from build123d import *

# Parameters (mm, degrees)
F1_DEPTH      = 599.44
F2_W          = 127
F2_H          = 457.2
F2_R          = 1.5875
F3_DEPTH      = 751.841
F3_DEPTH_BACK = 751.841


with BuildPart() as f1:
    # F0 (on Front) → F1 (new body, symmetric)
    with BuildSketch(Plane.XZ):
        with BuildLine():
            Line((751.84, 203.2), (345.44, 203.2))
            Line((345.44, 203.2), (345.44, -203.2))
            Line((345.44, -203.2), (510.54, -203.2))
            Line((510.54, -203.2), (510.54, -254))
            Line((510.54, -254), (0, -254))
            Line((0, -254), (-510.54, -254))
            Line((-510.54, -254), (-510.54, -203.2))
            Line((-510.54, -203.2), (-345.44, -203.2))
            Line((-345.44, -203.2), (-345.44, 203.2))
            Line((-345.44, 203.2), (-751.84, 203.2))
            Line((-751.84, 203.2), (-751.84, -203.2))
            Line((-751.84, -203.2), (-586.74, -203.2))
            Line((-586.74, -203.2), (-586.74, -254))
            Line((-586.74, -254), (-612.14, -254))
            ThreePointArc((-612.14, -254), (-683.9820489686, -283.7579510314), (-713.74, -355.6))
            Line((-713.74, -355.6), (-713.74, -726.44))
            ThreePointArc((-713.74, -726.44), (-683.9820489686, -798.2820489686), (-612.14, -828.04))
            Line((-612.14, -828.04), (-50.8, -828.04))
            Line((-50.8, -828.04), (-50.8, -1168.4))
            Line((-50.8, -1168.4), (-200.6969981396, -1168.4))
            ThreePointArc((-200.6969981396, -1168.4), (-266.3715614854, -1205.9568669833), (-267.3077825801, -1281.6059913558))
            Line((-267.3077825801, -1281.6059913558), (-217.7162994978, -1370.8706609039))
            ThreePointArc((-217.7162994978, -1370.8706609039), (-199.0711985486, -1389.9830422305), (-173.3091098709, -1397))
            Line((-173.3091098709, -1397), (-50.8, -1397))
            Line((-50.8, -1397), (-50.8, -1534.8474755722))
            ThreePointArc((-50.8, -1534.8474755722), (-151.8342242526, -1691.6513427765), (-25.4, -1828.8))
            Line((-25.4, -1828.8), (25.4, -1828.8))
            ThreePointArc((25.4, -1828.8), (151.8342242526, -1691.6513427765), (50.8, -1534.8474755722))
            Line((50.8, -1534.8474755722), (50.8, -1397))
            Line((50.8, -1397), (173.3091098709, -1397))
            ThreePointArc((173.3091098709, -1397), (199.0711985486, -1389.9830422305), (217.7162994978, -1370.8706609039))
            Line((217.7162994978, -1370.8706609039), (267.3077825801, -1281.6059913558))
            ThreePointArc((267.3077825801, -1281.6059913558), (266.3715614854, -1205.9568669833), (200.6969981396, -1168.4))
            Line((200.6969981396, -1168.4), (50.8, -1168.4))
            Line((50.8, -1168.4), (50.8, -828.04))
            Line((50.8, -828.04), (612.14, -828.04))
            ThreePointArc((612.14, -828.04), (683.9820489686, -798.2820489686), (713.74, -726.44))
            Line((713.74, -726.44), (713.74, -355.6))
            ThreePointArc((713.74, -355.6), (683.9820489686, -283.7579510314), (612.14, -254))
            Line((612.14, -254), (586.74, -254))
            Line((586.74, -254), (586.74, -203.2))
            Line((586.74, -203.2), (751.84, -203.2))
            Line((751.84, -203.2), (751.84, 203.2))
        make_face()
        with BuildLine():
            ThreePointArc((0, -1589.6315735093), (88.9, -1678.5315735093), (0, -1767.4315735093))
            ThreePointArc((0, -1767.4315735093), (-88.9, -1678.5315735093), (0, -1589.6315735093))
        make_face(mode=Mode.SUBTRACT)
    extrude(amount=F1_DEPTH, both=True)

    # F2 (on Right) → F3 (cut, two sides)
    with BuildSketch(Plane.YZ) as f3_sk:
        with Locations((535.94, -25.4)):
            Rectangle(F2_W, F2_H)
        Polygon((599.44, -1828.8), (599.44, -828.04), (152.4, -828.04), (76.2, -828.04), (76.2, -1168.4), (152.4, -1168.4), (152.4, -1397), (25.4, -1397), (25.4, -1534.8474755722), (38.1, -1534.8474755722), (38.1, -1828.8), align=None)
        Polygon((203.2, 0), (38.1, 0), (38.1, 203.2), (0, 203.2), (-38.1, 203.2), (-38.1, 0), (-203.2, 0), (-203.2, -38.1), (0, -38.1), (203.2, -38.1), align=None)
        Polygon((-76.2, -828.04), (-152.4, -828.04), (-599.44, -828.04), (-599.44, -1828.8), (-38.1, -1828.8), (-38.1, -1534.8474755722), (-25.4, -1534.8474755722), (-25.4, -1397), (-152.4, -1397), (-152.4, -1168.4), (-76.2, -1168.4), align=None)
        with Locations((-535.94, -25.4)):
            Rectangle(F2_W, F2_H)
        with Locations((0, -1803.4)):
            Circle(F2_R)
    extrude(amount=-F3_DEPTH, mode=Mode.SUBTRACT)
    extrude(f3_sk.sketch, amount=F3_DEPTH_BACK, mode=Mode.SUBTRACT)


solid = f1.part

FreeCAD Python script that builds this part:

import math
import FreeCAD as App
import Part
import Sketcher

V = App.Vector
Q = App.Units.Quantity


def add_polygon(sketch, points):
    """Adds a closed chain of lines whose ends are joined by coincident constraints."""
    first, n = sketch.GeometryCount, len(points)
    for a, b in zip(points, points[1:] + points[:1]):
        sketch.addGeometry(Part.LineSegment(App.Vector(*a, 0), App.Vector(*b, 0)), False)
    for i in range(n):
        sketch.addConstraint(Sketcher.Constraint("Coincident", first + i, 2, first + (i + 1) % n, 1))

doc = App.newDocument("Part")
params = doc.addObject("Spreadsheet::Sheet", "Params")
for row, (alias, value) in enumerate([
    ("sketch1_diameter", "7 in"),
    ("sketch1_radius", "4 in"),
    ("sketch1_radius2", "3 in"),
    ("sketch1_radius3", "2 in"),
    ("sketch1_radius4", "6 in"),
    ("pad1_length", "47.2 in"),
    ("sketch2_width", "5 in"),
    ("sketch2_width2", "3 in"),
    ("sketch2_width3", "16 in"),
    ("sketch2_height", "18 in"),
    ("sketch2_height2", "9 in"),
], start=1):
    params.set(f"A{row}", alias)
    params.set(f"B{row}", "=" + value)
    params.setAlias(f"B{row}", alias)

body = doc.addObject("PartDesign::Body", "Body")

# Sketch on XZ plane
sketch1 = doc.addObject("Sketcher::SketchObject", "Sketch")
body.addObject(sketch1)
sketch1.AttachmentSupport = (doc.XZ_Plane, [""])
sketch1.MapMode = "FlatFace"
sketch1.addGeometry([
    Part.LineSegment(V(752, 203, 0), V(345, 203, 0)),  # 0
    Part.LineSegment(V(345, 203, 0), V(345, -203, 0)),  # 1
    Part.LineSegment(V(345, -203, 0), V(511, -203, 0)),  # 2
    Part.LineSegment(V(511, -203, 0), V(511, -254, 0)),  # 3
    Part.LineSegment(V(511, -254, 0), V(-511, -254, 0)),  # 4
    Part.LineSegment(V(-511, -254, 0), V(-511, -203, 0)),  # 5
    Part.LineSegment(V(-511, -203, 0), V(-345, -203, 0)),  # 6
    Part.LineSegment(V(-345, -203, 0), V(-345, 203, 0)),  # 7
    Part.LineSegment(V(-345, 203, 0), V(-752, 203, 0)),  # 8
    Part.LineSegment(V(-752, 203, 0), V(-752, -203, 0)),  # 9
    Part.LineSegment(V(-752, -203, 0), V(-587, -203, 0)),  # 10
    Part.LineSegment(V(-587, -203, 0), V(-587, -254, 0)),  # 11
    Part.LineSegment(V(-587, -254, 0), V(-612, -254, 0)),  # 12
    Part.ArcOfCircle(Part.Circle(V(-612, -356, 0), V(0, 0, 1), 102), math.radians(90), math.radians(180)),  # 13
    Part.LineSegment(V(-714, -356, 0), V(-714, -726, 0)),  # 14
    Part.ArcOfCircle(Part.Circle(V(-612, -726, 0), V(0, 0, 1), 102), math.radians(180), math.radians(270)),  # 15
    Part.LineSegment(V(-612, -828, 0), V(-51, -828, 0)),  # 16
    Part.LineSegment(V(-51, -828, 0), V(-51, -1168, 0)),  # 17
    Part.LineSegment(V(-51, -1168, 0), V(-201, -1168, 0)),  # 18
    Part.ArcOfCircle(Part.Circle(V(-201, -1245, 0), V(0, 0, 1), 76), math.radians(90), math.radians(209)),  # 19
    Part.LineSegment(V(-267, -1282, 0), V(-218, -1371, 0)),  # 20
    Part.ArcOfCircle(Part.Circle(V(-173, -1346, 0), V(0, 0, 1), 51), math.radians(-151), math.radians(-90)),  # 21
    Part.LineSegment(V(-173, -1397, 0), V(-51, -1397, 0)),  # 22
    Part.LineSegment(V(-51, -1397, 0), V(-51, -1535, 0)),  # 23
    Part.ArcOfCircle(Part.Circle(V(0, -1679, 0), V(0, 0, 1), 152), math.radians(109), math.radians(260)),  # 24
    Part.LineSegment(V(-25, -1829, 0), V(25, -1829, 0)),  # 25
    Part.ArcOfCircle(Part.Circle(V(0, -1679, 0), V(0, 0, 1), 152), math.radians(-80), math.radians(71)),  # 26
    Part.LineSegment(V(51, -1535, 0), V(51, -1397, 0)),  # 27
    Part.LineSegment(V(51, -1397, 0), V(173, -1397, 0)),  # 28
    Part.ArcOfCircle(Part.Circle(V(173, -1346, 0), V(0, 0, 1), 51), math.radians(-90), math.radians(-29)),  # 29
    Part.LineSegment(V(218, -1371, 0), V(267, -1282, 0)),  # 30
    Part.ArcOfCircle(Part.Circle(V(201, -1245, 0), V(0, 0, 1), 76), math.radians(-29), math.radians(90)),  # 31
    Part.LineSegment(V(201, -1168, 0), V(51, -1168, 0)),  # 32
    Part.LineSegment(V(51, -1168, 0), V(51, -828, 0)),  # 33
    Part.LineSegment(V(51, -828, 0), V(612, -828, 0)),  # 34
    Part.ArcOfCircle(Part.Circle(V(612, -726, 0), V(0, 0, 1), 102), math.radians(-90), math.radians(0)),  # 35
    Part.LineSegment(V(714, -726, 0), V(714, -356, 0)),  # 36
    Part.ArcOfCircle(Part.Circle(V(612, -356, 0), V(0, 0, 1), 102), math.radians(0), math.radians(90)),  # 37
    Part.LineSegment(V(612, -254, 0), V(587, -254, 0)),  # 38
    Part.LineSegment(V(587, -254, 0), V(587, -203, 0)),  # 39
    Part.LineSegment(V(587, -203, 0), V(752, -203, 0)),  # 40
    Part.LineSegment(V(752, -203, 0), V(752, 203, 0)),  # 41
    Part.Circle(V(0, -1679, 0), V(0, 0, 1), 89),  # 42
], False)
sketch1.addConstraint([
    Sketcher.Constraint("Coincident", 0, 2, 1, 1),
    Sketcher.Constraint("Coincident", 1, 2, 2, 1),
    Sketcher.Constraint("Coincident", 2, 2, 3, 1),
    Sketcher.Constraint("Coincident", 3, 2, 4, 1),
    Sketcher.Constraint("Coincident", 4, 2, 5, 1),
    Sketcher.Constraint("Coincident", 5, 2, 6, 1),
    Sketcher.Constraint("Coincident", 6, 2, 7, 1),
    Sketcher.Constraint("Coincident", 7, 2, 8, 1),
    Sketcher.Constraint("Coincident", 8, 2, 9, 1),
    Sketcher.Constraint("Coincident", 9, 2, 10, 1),
    Sketcher.Constraint("Coincident", 10, 2, 11, 1),
    Sketcher.Constraint("Coincident", 11, 2, 12, 1),
    Sketcher.Constraint("Tangent", 12, 2, 13, 1),
    Sketcher.Constraint("Tangent", 13, 2, 14, 1),
    Sketcher.Constraint("Tangent", 14, 2, 15, 1),
    Sketcher.Constraint("Tangent", 15, 2, 16, 1),
    Sketcher.Constraint("Coincident", 16, 2, 17, 1),
    Sketcher.Constraint("Coincident", 17, 2, 18, 1),
    Sketcher.Constraint("Tangent", 18, 2, 19, 1),
    Sketcher.Constraint("Tangent", 19, 2, 20, 1),
    Sketcher.Constraint("Tangent", 20, 2, 21, 1),
    Sketcher.Constraint("Tangent", 21, 2, 22, 1),
    Sketcher.Constraint("Coincident", 22, 2, 23, 1),
    Sketcher.Constraint("Coincident", 23, 2, 24, 1),
    Sketcher.Constraint("Coincident", 24, 2, 25, 1),
    Sketcher.Constraint("Coincident", 25, 2, 26, 1),
    Sketcher.Constraint("Coincident", 26, 2, 27, 1),
    Sketcher.Constraint("Coincident", 27, 2, 28, 1),
    Sketcher.Constraint("Tangent", 28, 2, 29, 1),
    Sketcher.Constraint("Tangent", 29, 2, 30, 1),
    Sketcher.Constraint("Tangent", 30, 2, 31, 1),
    Sketcher.Constraint("Tangent", 31, 2, 32, 1),
    Sketcher.Constraint("Coincident", 32, 2, 33, 1),
    Sketcher.Constraint("Coincident", 33, 2, 34, 1),
    Sketcher.Constraint("Tangent", 34, 2, 35, 1),
    Sketcher.Constraint("Tangent", 35, 2, 36, 1),
    Sketcher.Constraint("Tangent", 36, 2, 37, 1),
    Sketcher.Constraint("Tangent", 37, 2, 38, 1),
    Sketcher.Constraint("Coincident", 38, 2, 39, 1),
    Sketcher.Constraint("Coincident", 39, 2, 40, 1),
    Sketcher.Constraint("Coincident", 40, 2, 41, 1),
    Sketcher.Constraint("Coincident", 41, 2, 0, 1),
    Sketcher.Constraint("Horizontal", 0),
    Sketcher.Constraint("Vertical", 1),
    Sketcher.Constraint("Horizontal", 2),
    Sketcher.Constraint("Vertical", 3),
    Sketcher.Constraint("Horizontal", 4),
    Sketcher.Constraint("Vertical", 5),
    Sketcher.Constraint("Horizontal", 6),
    Sketcher.Constraint("Vertical", 7),
    Sketcher.Constraint("Horizontal", 8),
    Sketcher.Constraint("Vertical", 9),
    Sketcher.Constraint("Horizontal", 10),
    Sketcher.Constraint("Vertical", 11),
    Sketcher.Constraint("Horizontal", 12),
    Sketcher.Constraint("Vertical", 14),
    Sketcher.Constraint("Horizontal", 16),
    Sketcher.Constraint("Vertical", 17),
    Sketcher.Constraint("Horizontal", 18),
    Sketcher.Constraint("Horizontal", 22),
    Sketcher.Constraint("Vertical", 23),
    Sketcher.Constraint("Horizontal", 25),
    Sketcher.Constraint("Vertical", 27),
    Sketcher.Constraint("Horizontal", 28),
    Sketcher.Constraint("Horizontal", 32),
    Sketcher.Constraint("Vertical", 33),
    Sketcher.Constraint("Horizontal", 34),
    Sketcher.Constraint("Vertical", 36),
    Sketcher.Constraint("Horizontal", 38),
    Sketcher.Constraint("Vertical", 39),
    Sketcher.Constraint("Horizontal", 40),
    Sketcher.Constraint("Vertical", 41),
    Sketcher.Constraint("Coincident", 26, 3, 24, 3),
    Sketcher.Constraint("Coincident", 42, 3, 24, 3),
    Sketcher.Constraint("Equal", 13, 15),
    Sketcher.Constraint("Equal", 24, 26),
    Sketcher.Constraint("Equal", 21, 29),
    Sketcher.Constraint("Equal", 19, 31),
    Sketcher.Constraint("Equal", 15, 35),
    Sketcher.Constraint("Equal", 35, 37),
    Sketcher.Constraint("Symmetric", 0, 2, 6, 2, -1, 1),
    Sketcher.Constraint("Symmetric", 8, 2, 40, 2, -1, 1),
    Sketcher.Constraint("Symmetric", 21, 3, 29, 3, -2),
    Sketcher.Constraint("Symmetric", 19, 3, 31, 3, -2),
    Sketcher.Constraint("Symmetric", 15, 3, 35, 3, -2),
    Sketcher.Constraint("Symmetric", 2, 2, 5, 2, -2),
    Sketcher.Constraint("Symmetric", 23, 2, 26, 2, -2),
    Sketcher.Constraint("Symmetric", 11, 2, 38, 2, -2),
    Sketcher.Constraint("Horizontal", 0, 2, 7, 2),
    Sketcher.Constraint("Horizontal", 6, 2, 9, 2),
    Sketcher.Constraint("Horizontal", 4, 2, 11, 2),
    Sketcher.Constraint("Vertical", 17, 2, 22, 2),
    Sketcher.Constraint("Vertical", 27, 2, 32, 2),
    Sketcher.Constraint("Equal", 6, 10),
    Sketcher.Constraint("Equal", 8, 1),
    Sketcher.Constraint("Equal", 25, 3),
    Sketcher.Constraint("Diameter", 42, Q("7 in")),
    Sketcher.Constraint("Radius", 13, Q("4 in")),
    Sketcher.Constraint("Radius", 19, Q("3 in")),
    Sketcher.Constraint("Radius", 21, Q("2 in")),
    Sketcher.Constraint("Radius", 24, Q("6 in")),
    Sketcher.Constraint("DistanceX", 0, 2, 0, 1, Q("16 in")),
    Sketcher.Constraint("DistanceX", 12, 2, 12, 1, Q("1 in")),
    Sketcher.Constraint("DistanceX", 25, 1, 25, 2, Q("2 in")),
    Sketcher.Constraint("DistanceX", 2, 1, 2, 2, Q("6.5 in")),
    Sketcher.Constraint("DistanceX", 4, 2, 4, 1, Q("40.2 in")),
    Sketcher.Constraint("DistanceX", 16, 1, 16, 2, Q("22.1 in")),
    Sketcher.Constraint("DistanceY", 14, 2, 14, 1, Q("14.6 in")),
    Sketcher.Constraint("DistanceY", 17, 2, 17, 1, Q("13.4 in")),
    Sketcher.Constraint("DistanceY", 21, 3, -1, 1, Q("53 in")),
    Sketcher.Constraint("DistanceY", 24, 2, -1, 1, Q("72 in")),
    Sketcher.Constraint("DistanceX", 18, 2, 18, 1, 149.896998),
    Sketcher.Constraint("DistanceX", 22, 1, 22, 2, 122.50911),
])
sketch1.setExpression("Constraints[96]", "Params.sketch1_diameter")
sketch1.setExpression("Constraints[97]", "Params.sketch1_radius")
sketch1.setExpression("Constraints[98]", "Params.sketch1_radius2")
sketch1.setExpression("Constraints[99]", "Params.sketch1_radius3")
sketch1.setExpression("Constraints[100]", "Params.sketch1_radius4")
pad1 = doc.addObject("PartDesign::Pad", "Pad")
body.addObject(pad1)
pad1.Profile = sketch1
pad1.setExpression("Length", "Params.pad1_length")
pad1.Midplane = True

# Sketch on YZ plane
sketch2 = doc.addObject("Sketcher::SketchObject", "Sketch001")
body.addObject(sketch2)
sketch2.AttachmentSupport = (doc.YZ_Plane, [""])
sketch2.MapMode = "FlatFace"
add_polygon(sketch2, [(472.4, 203.2), (472.4, -254), (599.4, -254), (599.4, 203.2)])  # lines 0-3
add_polygon(sketch2, [(599.4, -1828.8), (599.4, -828), (76.2, -828), (76.2, -1168.4), (152.4, -1168.4), (152.4, -1397), (25.4, -1397), (25.4, -1534.8), (38.1, -1534.8), (38.1, -1828.8)])  # lines 4-13
add_polygon(sketch2, [(203.2, 0), (38.1, 0), (38.1, 203.2), (-38.1, 203.2), (-38.1, 0), (-203.2, 0), (-203.2, -38.1), (203.2, -38.1)])  # lines 14-21
add_polygon(sketch2, [(-76.2, -828), (-599.4, -828), (-599.4, -1828.8), (-38.1, -1828.8), (-38.1, -1534.8), (-25.4, -1534.8), (-25.4, -1397), (-152.4, -1397), (-152.4, -1168.4), (-76.2, -1168.4)])  # lines 22-31
add_polygon(sketch2, [(-599.4, 203.2), (-599.4, -254), (-472.4, -254), (-472.4, 203.2)])  # lines 32-35
sketch2.addGeometry(Part.Circle(V(0, -1803.4, 0), V(0, 0, 1), 1.6), False)  # 36
sketch2.addConstraint([
    Sketcher.Constraint("Vertical", 0),
    Sketcher.Constraint("Horizontal", 1),
    Sketcher.Constraint("Vertical", 2),
    Sketcher.Constraint("Horizontal", 3),
    Sketcher.Constraint("Vertical", 4),
    Sketcher.Constraint("Horizontal", 5),
    Sketcher.Constraint("Vertical", 6),
    Sketcher.Constraint("Horizontal", 7),
    Sketcher.Constraint("Vertical", 8),
    Sketcher.Constraint("Horizontal", 9),
    Sketcher.Constraint("Vertical", 10),
    Sketcher.Constraint("Horizontal", 11),
    Sketcher.Constraint("Vertical", 12),
    Sketcher.Constraint("Horizontal", 13),
    Sketcher.Constraint("Horizontal", 14),
    Sketcher.Constraint("Vertical", 15),
    Sketcher.Constraint("Horizontal", 16),
    Sketcher.Constraint("Vertical", 17),
    Sketcher.Constraint("Horizontal", 18),
    Sketcher.Constraint("Vertical", 19),
    Sketcher.Constraint("Horizontal", 20),
    Sketcher.Constraint("Vertical", 21),
    Sketcher.Constraint("Horizontal", 22),
    Sketcher.Constraint("Vertical", 23),
    Sketcher.Constraint("Horizontal", 24),
    Sketcher.Constraint("Vertical", 25),
    Sketcher.Constraint("Horizontal", 26),
    Sketcher.Constraint("Vertical", 27),
    Sketcher.Constraint("Horizontal", 28),
    Sketcher.Constraint("Vertical", 29),
    Sketcher.Constraint("Horizontal", 30),
    Sketcher.Constraint("Vertical", 31),
    Sketcher.Constraint("Vertical", 32),
    Sketcher.Constraint("Horizontal", 33),
    Sketcher.Constraint("Vertical", 34),
    Sketcher.Constraint("Horizontal", 35),
    Sketcher.Constraint("Symmetric", 14, 2, 17, 2, -1, 1),
    Sketcher.Constraint("Symmetric", 18, 2, 21, 2, -2),
    Sketcher.Constraint("Symmetric", 4, 2, 22, 2, -2),
    Sketcher.Constraint("Symmetric", 12, 2, 24, 2, -2),
    Sketcher.Constraint("Symmetric", 10, 2, 26, 2, -2),
    Sketcher.Constraint("Symmetric", 8, 2, 28, 2, -2),
    Sketcher.Constraint("Symmetric", 6, 2, 30, 2, -2),
    Sketcher.Constraint("Symmetric", 1, 2, 32, 2, -2),
    Sketcher.Constraint("Symmetric", 3, 2, 34, 2, -2),
    Sketcher.Constraint("PointOnObject", 36, 3, -2),
    Sketcher.Constraint("Horizontal", 3, 2, 15, 2),
    Sketcher.Constraint("Vertical", 2, 2, 4, 2),
    Sketcher.Constraint("Vertical", 12, 2, 14, 2),
    Sketcher.Constraint("Equal", 3, 9),
    Sketcher.Constraint("Equal", 7, 16),
    Sketcher.Constraint("DistanceX", 1, 1, 1, 2, Q("5 in")),
    Sketcher.Constraint("DistanceX", 7, 1, 7, 2, Q("3 in")),
    Sketcher.Constraint("DistanceX", 20, 1, 20, 2, Q("16 in")),
    Sketcher.Constraint("DistanceY", 0, 2, 0, 1, Q("18 in")),
    Sketcher.Constraint("DistanceY", 8, 2, 8, 1, Q("9 in")),
    Sketcher.Constraint("DistanceY", 15, 1, 15, 2, Q("8 in")),
    Sketcher.Constraint("Diameter", 36, Q("0.125 in")),
    Sketcher.Constraint("DistanceX", 5, 2, 5, 1, Q("20.6 in")),
    Sketcher.Constraint("DistanceX", 11, 1, 11, 2, Q("0.5 in")),
    Sketcher.Constraint("DistanceY", 4, 1, 4, 2, Q("39.4 in")),
    Sketcher.Constraint("DistanceY", 6, 2, 6, 1, Q("13.4 in")),
    Sketcher.Constraint("DistanceY", 19, 2, 19, 1, Q("1.5 in")),
    Sketcher.Constraint("DistanceY", 36, 3, -1, 1, Q("71 in")),
    Sketcher.Constraint("DistanceY", 6, 2, -1, 1, Q("46 in")),
    Sketcher.Constraint("DistanceY", 10, 2, 10, 1, 137.847476),
])
sketch2.setExpression("Constraints[87]", "Params.sketch2_width")
sketch2.setExpression("Constraints[88]", "Params.sketch2_width2")
sketch2.setExpression("Constraints[89]", "Params.sketch2_width3")
sketch2.setExpression("Constraints[90]", "Params.sketch2_height")
sketch2.setExpression("Constraints[91]", "Params.sketch2_height2")
pocket1 = doc.addObject("PartDesign::Pocket", "Pocket")
body.addObject(pocket1)
pocket1.Profile = sketch2
pocket1.Type = "ThroughAll"
pocket1.Midplane = True

doc.recompute()
